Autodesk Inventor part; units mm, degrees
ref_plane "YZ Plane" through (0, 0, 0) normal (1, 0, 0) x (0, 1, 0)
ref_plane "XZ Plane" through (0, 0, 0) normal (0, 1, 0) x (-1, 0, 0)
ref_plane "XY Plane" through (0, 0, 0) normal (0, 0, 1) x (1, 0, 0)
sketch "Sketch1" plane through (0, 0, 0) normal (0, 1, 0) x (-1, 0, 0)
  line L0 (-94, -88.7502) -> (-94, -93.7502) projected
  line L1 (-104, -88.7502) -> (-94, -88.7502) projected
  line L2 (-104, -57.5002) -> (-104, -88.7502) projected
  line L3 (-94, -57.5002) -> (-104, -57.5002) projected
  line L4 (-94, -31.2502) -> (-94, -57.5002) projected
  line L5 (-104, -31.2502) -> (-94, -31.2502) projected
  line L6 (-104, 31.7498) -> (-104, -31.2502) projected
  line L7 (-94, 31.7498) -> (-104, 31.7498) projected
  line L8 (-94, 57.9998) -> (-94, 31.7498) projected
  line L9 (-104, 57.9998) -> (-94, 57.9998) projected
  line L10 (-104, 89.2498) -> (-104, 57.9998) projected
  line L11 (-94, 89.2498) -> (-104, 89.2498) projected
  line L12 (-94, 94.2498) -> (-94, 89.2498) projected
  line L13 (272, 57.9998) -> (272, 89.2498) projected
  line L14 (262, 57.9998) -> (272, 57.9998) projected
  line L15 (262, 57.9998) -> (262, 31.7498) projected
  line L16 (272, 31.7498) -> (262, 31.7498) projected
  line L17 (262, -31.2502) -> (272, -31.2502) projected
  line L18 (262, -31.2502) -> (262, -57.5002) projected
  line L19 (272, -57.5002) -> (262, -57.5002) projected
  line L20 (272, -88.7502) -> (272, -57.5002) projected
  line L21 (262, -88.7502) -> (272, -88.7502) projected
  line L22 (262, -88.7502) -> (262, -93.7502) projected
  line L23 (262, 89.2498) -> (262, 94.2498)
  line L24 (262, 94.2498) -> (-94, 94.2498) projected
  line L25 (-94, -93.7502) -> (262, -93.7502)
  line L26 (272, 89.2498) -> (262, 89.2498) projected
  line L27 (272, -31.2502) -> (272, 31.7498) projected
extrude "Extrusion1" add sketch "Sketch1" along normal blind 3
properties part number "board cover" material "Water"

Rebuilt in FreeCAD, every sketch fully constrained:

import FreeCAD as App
import Part
import Sketcher
from FreeCAD import Vector
Q = App.Units.Quantity


def add_polygon(sketch, points):
    """Adds a closed chain of lines whose ends are joined by coincident constraints."""
    first, n = sketch.GeometryCount, len(points)
    for a, b in zip(points, points[1:] + points[:1]):
        sketch.addGeometry(Part.LineSegment(App.Vector(*a, 0), App.Vector(*b, 0)), False)
    for i in range(n):
        sketch.addConstraint(Sketcher.Constraint("Coincident", first + i, 2, first + (i + 1) % n, 1))

doc = App.newDocument("Part")
body = doc.addObject("PartDesign::Body", "Body")

sketch1 = body.newObject("Sketcher::SketchObject", "Sketch")
sketch1.AttachmentSupport = (doc.getObject("XZ_Plane"), [""])
sketch1.MapMode = "FlatFace"
add_polygon(sketch1, [(104, -88.7502), (94, -88.7502), (94, -93.7502), (-262, -93.7502), (-262, -88.7502), (-272, -88.7502), (-272, -57.5002), (-262, -57.5002), (-262, -31.2502), (-272, -31.2502), (-272, 31.7498), (-262, 31.7498), (-262, 57.9998), (-272, 57.9998), (-272, 89.2498), (-262, 89.2498), (-262, 94.2498), (94, 94.2498), (94, 89.2498), (104, 89.2498), (104, 57.9998), (94, 57.9998), (94, 31.7498), (104, 31.7498), (104, -31.2502), (94, -31.2502), (94, -57.5002), (104, -57.5002)])
sketch1.addConstraint([
    Sketcher.Constraint("Horizontal", 0),
    Sketcher.Constraint("Vertical", 1),
    Sketcher.Constraint("Horizontal", 2),
    Sketcher.Constraint("Vertical", 3),
    Sketcher.Constraint("Horizontal", 4),
    Sketcher.Constraint("Vertical", 5),
    Sketcher.Constraint("Horizontal", 6),
    Sketcher.Constraint("Vertical", 7),
    Sketcher.Constraint("Horizontal", 8),
    Sketcher.Constraint("Vertical", 9),
    Sketcher.Constraint("Horizontal", 10),
    Sketcher.Constraint("Vertical", 11),
    Sketcher.Constraint("Horizontal", 12),
    Sketcher.Constraint("Vertical", 13),
    Sketcher.Constraint("Horizontal", 14),
    Sketcher.Constraint("Vertical", 15),
    Sketcher.Constraint("Horizontal", 16),
    Sketcher.Constraint("Vertical", 17),
    Sketcher.Constraint("Horizontal", 18),
    Sketcher.Constraint("Vertical", 19),
    Sketcher.Constraint("Horizontal", 20),
    Sketcher.Constraint("Vertical", 21),
    Sketcher.Constraint("Horizontal", 22),
    Sketcher.Constraint("Vertical", 23),
    Sketcher.Constraint("Horizontal", 24),
    Sketcher.Constraint("Vertical", 25),
    Sketcher.Constraint("Horizontal", 26),
    Sketcher.Constraint("Vertical", 27),
    Sketcher.Constraint("Horizontal", 0, 2, 3, 2),
    Sketcher.Constraint("Horizontal", 14, 2, 17, 2),
    Sketcher.Constraint("Horizontal", 12, 2, 19, 2),
    Sketcher.Constraint("Horizontal", 10, 2, 21, 2),
    Sketcher.Constraint("Horizontal", 8, 2, 23, 2),
    Sketcher.Constraint("Horizontal", 6, 2, 25, 2),
    Sketcher.Constraint("Vertical", 3, 2, 6, 2),
    Sketcher.Constraint("Vertical", 5, 2, 8, 2),
    Sketcher.Constraint("Vertical", 7, 2, 10, 2),
    Sketcher.Constraint("Vertical", 9, 2, 12, 2),
    Sketcher.Constraint("Vertical", 11, 2, 14, 2),
    Sketcher.Constraint("Vertical", 1, 2, 16, 2),
    Sketcher.Constraint("Vertical", 17, 2, 20, 2),
    Sketcher.Constraint("Vertical", 19, 2, 22, 2),
    Sketcher.Constraint("Vertical", 21, 2, 24, 2),
    Sketcher.Constraint("Vertical", 23, 2, 26, 2),
    Sketcher.Constraint("Equal", 0, 4),
    Sketcher.Constraint("Equal", 7, 11),
    Sketcher.Constraint("Equal", 5, 13),
    Sketcher.Constraint("Equal", 3, 15),
    Sketcher.Constraint("DistanceX", 0, 2, 0, 1, Q("10 mm")),
    Sketcher.Constraint("DistanceX", 2, 2, 2, 1, Q("356 mm")),
    Sketcher.Constraint("DistanceY", 1, 2, 1, 1, Q("5 mm")),
    Sketcher.Constraint("DistanceY", 9, 1, 9, 2, Q("63 mm")),
    Sketcher.Constraint("DistanceX", -1, 1, 0, 2, Q("94 mm")),
    Sketcher.Constraint("DistanceY", 0, 2, 16, 2, Q("183 mm")),
    Sketcher.Constraint("DistanceY", 5, 1, 5, 2, Q("31.25 mm")),
    Sketcher.Constraint("DistanceY", 0, 2, -1, 1, Q("88.7502 mm")),
])
pad1 = body.newObject("PartDesign::Pad", "Pad")
pad1.Profile = sketch1
pad1.Length = 3
pad1.Reversed = True

doc.recompute()
